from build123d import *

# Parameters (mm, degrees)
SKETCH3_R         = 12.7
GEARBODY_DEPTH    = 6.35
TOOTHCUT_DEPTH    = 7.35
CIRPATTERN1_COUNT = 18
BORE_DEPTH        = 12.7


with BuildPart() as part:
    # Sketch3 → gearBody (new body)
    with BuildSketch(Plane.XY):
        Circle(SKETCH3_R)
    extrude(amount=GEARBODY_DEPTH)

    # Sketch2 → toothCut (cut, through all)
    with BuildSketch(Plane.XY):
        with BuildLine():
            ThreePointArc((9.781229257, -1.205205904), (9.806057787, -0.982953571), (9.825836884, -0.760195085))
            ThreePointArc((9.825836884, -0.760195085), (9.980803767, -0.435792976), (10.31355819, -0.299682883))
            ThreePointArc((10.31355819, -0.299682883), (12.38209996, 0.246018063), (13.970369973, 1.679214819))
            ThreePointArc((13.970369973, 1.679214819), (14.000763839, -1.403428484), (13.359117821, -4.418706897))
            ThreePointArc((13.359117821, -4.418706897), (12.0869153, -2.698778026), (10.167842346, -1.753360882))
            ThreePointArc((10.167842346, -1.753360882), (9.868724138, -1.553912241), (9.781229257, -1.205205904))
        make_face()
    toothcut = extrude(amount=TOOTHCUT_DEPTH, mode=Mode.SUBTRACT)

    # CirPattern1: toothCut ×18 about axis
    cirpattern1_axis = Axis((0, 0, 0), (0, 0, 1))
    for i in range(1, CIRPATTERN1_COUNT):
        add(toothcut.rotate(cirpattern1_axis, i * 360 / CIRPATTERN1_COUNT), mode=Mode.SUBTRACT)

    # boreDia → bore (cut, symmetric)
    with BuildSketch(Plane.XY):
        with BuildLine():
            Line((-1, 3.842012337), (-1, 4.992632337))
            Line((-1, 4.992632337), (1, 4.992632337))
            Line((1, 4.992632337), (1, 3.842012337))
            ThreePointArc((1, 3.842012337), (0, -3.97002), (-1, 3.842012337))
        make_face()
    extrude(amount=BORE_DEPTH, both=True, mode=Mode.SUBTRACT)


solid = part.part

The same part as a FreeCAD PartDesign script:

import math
import FreeCAD as App
import Part
import Sketcher

V = App.Vector
Q = App.Units.Quantity

doc = App.newDocument("Part")
body = doc.addObject("PartDesign::Body", "Body")

# Sketch on XY plane
sketch1 = body.newObject("Sketcher::SketchObject", "Sketch")
sketch1.AttachmentSupport = (doc.getObject("XY_Plane"), [""])
sketch1.MapMode = "FlatFace"
sketch1.addGeometry(Part.Circle(V(0, 0, 0), V(0, 0, 1), 13), False)
sketch1.addConstraint(Sketcher.Constraint("Coincident", 0, 3, -1, 1))
sketch1.addConstraint(Sketcher.Constraint("Diameter", 0, Q("1 in")))
pad1 = body.newObject("PartDesign::Pad", "Pad")
pad1.Profile = sketch1
pad1.Length = Q("0.25 in")

# Sketch on XY plane
sketch2 = body.newObject("Sketcher::SketchObject", "Sketch001")
sketch2.AttachmentSupport = (doc.getObject("XY_Plane"), [""])
sketch2.MapMode = "FlatFace"
sketch2.addGeometry(Part.ArcOfCircle(Part.Circle(V(0, 0, 0), V(0, 0, 1), 9.86), math.radians(-7.02), math.radians(-4.42)), False)
sketch2.addGeometry(Part.ArcOfCircle(Part.Circle(V(10.28, -1.27, 0), V(0, 0, 1), 0.5), math.radians(173), math.radians(257)), False)
sketch2.addGeometry(Part.ArcOfCircle(Part.Circle(V(9.18, -6.18, 0), V(0, 0, 1), 4.54), math.radians(23), math.radians(77)), False)
sketch2.addGeometry(Part.ArcOfCircle(Part.Circle(V(0, 0, 0), V(0, 0, 1), 14.07), math.radians(-18), math.radians(7)), False)
sketch2.addGeometry(Part.ArcOfCircle(Part.Circle(V(10.22, 4.23, 0), V(0, 0, 1), 4.54), math.radians(-89), math.radians(-34)), False)
sketch2.addGeometry(Part.ArcOfCircle(Part.Circle(V(10.32, -0.8, 0), V(0, 0, 1), 0.5), math.radians(91), math.radians(176)), False)
sketch2.addConstraint(Sketcher.Constraint("Tangent", 0, 1, 1, 1))
sketch2.addConstraint(Sketcher.Constraint("Tangent", 1, 2, 2, 2))
sketch2.addConstraint(Sketcher.Constraint("Coincident", 2, 1, 3, 1))
sketch2.addConstraint(Sketcher.Constraint("Coincident", 3, 2, 4, 2))
sketch2.addConstraint(Sketcher.Constraint("Tangent", 4, 1, 5, 1))
sketch2.addConstraint(Sketcher.Constraint("Tangent", 5, 2, 0, 2))
sketch2.addConstraint(Sketcher.Constraint("Coincident", 0, 3, -1, 1))
sketch2.addConstraint(Sketcher.Constraint("Coincident", 3, 3, -1, 1))
sketch2.addConstraint(Sketcher.Constraint("Equal", 2, 4))
sketch2.addConstraint(Sketcher.Constraint("Equal", 1, 5))
sketch2.addConstraint(Sketcher.Constraint("Radius", 0, Q("0.388 in")))
sketch2.addConstraint(Sketcher.Constraint("Radius", 1, 0.49911))
sketch2.addConstraint(Sketcher.Constraint("Radius", 2, 4.535323))
sketch2.addConstraint(Sketcher.Constraint("Radius", 3, 14.070927))
sketch2.addConstraint(Sketcher.Constraint("DistanceX", 2, 3, 4, 3, Q("0.0411 in")))
sketch2.addConstraint(Sketcher.Constraint("DistanceX", 2, 3, 1, 2, 0.988198))
sketch2.addConstraint(Sketcher.Constraint("DistanceY", 2, 1, 0, 1, 3.213501))
sketch2.addConstraint(Sketcher.Constraint("DistanceY", 5, 3, 5, 2, 0.0385))
pocket1 = body.newObject("PartDesign::Pocket", "Pocket")
pocket1.Profile = sketch2
pocket1.Type = "ThroughAll"
pocket1.Reversed = True
doc.recompute()

polarpattern = body.newObject("PartDesign::PolarPattern", "PolarPattern")
polarpattern.Originals = [pocket1]
polarpattern.Axis = (doc.getObject("Z_Axis"), [""])
polarpattern.Angle = 360
polarpattern.Occurrences = 18
body.Tip = polarpattern

# Sketch on XY plane
sketch3 = body.newObject("Sketcher::SketchObject", "Sketch002")
sketch3.AttachmentSupport = (doc.getObject("XY_Plane"), [""])
sketch3.MapMode = "FlatFace"
sketch3.addGeometry(Part.LineSegment(V(-1, 5, 0), V(-1, 3.8, 0)), False)
sketch3.addGeometry(Part.ArcOfCircle(Part.Circle(V(0, 0, 0), V(0, 0, 1), 4), math.radians(105), math.radians(435)), False)
sketch3.addGeometry(Part.LineSegment(V(1, 3.8, 0), V(1, 5, 0)), False)
sketch3.addGeometry(Part.LineSegment(V(1, 5, 0), V(-1, 5, 0)), False)
sketch3.addConstraint(Sketcher.Constraint("Coincident", 0, 2, 1, 1))
sketch3.addConstraint(Sketcher.Constraint("Coincident", 1, 2, 2, 1))
sketch3.addConstraint(Sketcher.Constraint("Coincident", 2, 2, 3, 1))
sketch3.addConstraint(Sketcher.Constraint("Coincident", 3, 2, 0, 1))
sketch3.addConstraint(Sketcher.Constraint("Vertical", 0))
sketch3.addConstraint(Sketcher.Constraint("Vertical", 2))
sketch3.addConstraint(Sketcher.Constraint("Horizontal", 3))
sketch3.addConstraint(Sketcher.Constraint("Coincident", 1, 3, -1, 1))
sketch3.addConstraint(Sketcher.Constraint("Horizontal", 0, 2, 1, 2))
sketch3.addConstraint(Sketcher.Constraint("Radius", 1, Q("0.1563 in")))
sketch3.addConstraint(Sketcher.Constraint("DistanceY", 0, 2, 0, 1, Q("0.0453 in")))
sketch3.addConstraint(Sketcher.Constraint("DistanceX", 3, 2, 3, 1, 2.0))
pocket2 = body.newObject("PartDesign::Pocket", "Pocket001")
pocket2.Profile = sketch3
pocket2.Length = Q("1 in")
pocket2.Midplane = True

doc.recompute()
